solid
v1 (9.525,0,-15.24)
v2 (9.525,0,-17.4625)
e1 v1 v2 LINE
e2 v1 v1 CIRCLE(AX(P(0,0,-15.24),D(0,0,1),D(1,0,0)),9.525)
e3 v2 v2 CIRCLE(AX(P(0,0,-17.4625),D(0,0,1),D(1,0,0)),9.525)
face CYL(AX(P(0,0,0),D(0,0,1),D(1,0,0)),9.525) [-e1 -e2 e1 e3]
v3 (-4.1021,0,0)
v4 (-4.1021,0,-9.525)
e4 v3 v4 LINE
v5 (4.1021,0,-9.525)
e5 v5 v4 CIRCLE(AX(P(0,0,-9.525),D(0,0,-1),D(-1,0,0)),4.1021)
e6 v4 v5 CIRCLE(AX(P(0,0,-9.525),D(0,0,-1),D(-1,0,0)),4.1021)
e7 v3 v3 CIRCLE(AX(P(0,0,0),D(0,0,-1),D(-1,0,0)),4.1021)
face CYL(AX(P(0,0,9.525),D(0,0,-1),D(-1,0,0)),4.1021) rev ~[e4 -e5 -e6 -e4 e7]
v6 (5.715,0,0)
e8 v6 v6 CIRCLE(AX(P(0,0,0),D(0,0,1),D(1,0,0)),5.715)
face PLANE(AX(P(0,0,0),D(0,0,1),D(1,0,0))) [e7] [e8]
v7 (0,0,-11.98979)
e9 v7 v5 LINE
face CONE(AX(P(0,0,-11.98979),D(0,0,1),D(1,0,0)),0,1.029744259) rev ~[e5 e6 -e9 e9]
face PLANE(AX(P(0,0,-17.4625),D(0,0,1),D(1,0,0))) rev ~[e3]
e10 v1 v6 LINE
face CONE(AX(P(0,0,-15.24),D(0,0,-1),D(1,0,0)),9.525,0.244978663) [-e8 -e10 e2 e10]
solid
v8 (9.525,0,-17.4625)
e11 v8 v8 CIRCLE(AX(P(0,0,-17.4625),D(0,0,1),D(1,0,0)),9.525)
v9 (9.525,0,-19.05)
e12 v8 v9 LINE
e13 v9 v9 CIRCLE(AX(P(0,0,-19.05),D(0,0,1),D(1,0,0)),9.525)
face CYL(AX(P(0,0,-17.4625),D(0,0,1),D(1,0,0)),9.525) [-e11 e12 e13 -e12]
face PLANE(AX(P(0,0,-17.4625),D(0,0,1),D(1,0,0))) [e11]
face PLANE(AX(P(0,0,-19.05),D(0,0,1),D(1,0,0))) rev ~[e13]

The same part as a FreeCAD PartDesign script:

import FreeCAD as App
import Part
import Sketcher
Q = App.Units.Quantity


def edges_at(feature, points):
    """Names of the edges that pass closest to the given points."""
    edges = feature.Shape.Edges
    near = lambda p: min(range(len(edges)), key=lambda i: edges[i].distToShape(Part.Vertex(*p))[0])
    return sorted({f"Edge{near(p) + 1}" for p in points})

doc = App.newDocument("Part")
body = doc.addObject("PartDesign::Body", "Body")

# Sketch on XY plane
sketch1 = doc.addObject("Sketcher::SketchObject", "Sketch")
body.addObject(sketch1)
sketch1.AttachmentSupport = (doc.XY_Plane, [""])
sketch1.MapMode = "FlatFace"
sketch1.addGeometry(Part.Circle(App.Vector(0, 0, 0), App.Vector(0, 0, 1), 10), False)
sketch1.addConstraint([
    Sketcher.Constraint("Coincident", 0, 3, -1, 1),
    Sketcher.Constraint("Diameter", 0, Q("0.75 in")),
])
pad1 = doc.addObject("PartDesign::Pad", "Pad")
body.addObject(pad1)
pad1.Profile = sketch1
pad1.Length = Q("0.6875 in")
pad1.Reversed = True

# Sketch on XY plane
sketch2 = doc.addObject("Sketcher::SketchObject", "Sketch001")
body.addObject(sketch2)
sketch2.AttachmentSupport = (doc.XY_Plane, [""])
sketch2.MapMode = "FlatFace"
sketch2.addGeometry(Part.Circle(App.Vector(0, 0, 0), App.Vector(0, 0, 1), 4.1), False)
sketch2.addConstraint([
    Sketcher.Constraint("Coincident", 0, 3, -1, 1),
    Sketcher.Constraint("Diameter", 0, Q("0.323 in")),
])
doc.recompute()
hole = doc.addObject("PartDesign::Hole", "Hole")
body.addObject(hole)
hole.Profile = sketch2
hole.ThreadType = "None"
hole.Diameter = Q("0.323 in")
hole.DepthType = "Dimension"
hole.Depth = Q("0.375 in")
hole.DrillPoint = "Angled"
hole.DrillPointAngle = 118
doc.recompute()

chamfer = doc.addObject("PartDesign::Chamfer", "Chamfer")
body.addObject(chamfer)
chamfer.Base = (hole, edges_at(hole, [(-9.525, 0, 0)]))
chamfer.ChamferType = "Two distances"
chamfer.Size = Q("0.6 in")
chamfer.Size2 = Q("0.15 in")
body2 = doc.addObject("PartDesign::Body", "Body001")

# Sketch on XY plane
sketch3 = doc.addObject("Sketcher::SketchObject", "Sketch002")
body2.addObject(sketch3)
sketch3.AttachmentSupport = (doc.getObject("XY_Plane001"), [""])
sketch3.MapMode = "FlatFace"
sketch3.AttachmentOffset = App.Placement(App.Vector(0, 0, -0.6875 * 25.4), App.Rotation())
sketch3.addGeometry(Part.Circle(App.Vector(0, 0, 0), App.Vector(0, 0, 1), 10), False)
sketch3.addConstraint([
    Sketcher.Constraint("Coincident", 0, 3, -1, 1),
    Sketcher.Constraint("Diameter", 0, Q("0.75 in")),
])
pad2 = doc.addObject("PartDesign::Pad", "Pad001")
body2.addObject(pad2)
pad2.Profile = sketch3
pad2.Length = Q("0.0625 in")
pad2.Reversed = True

doc.recompute()
